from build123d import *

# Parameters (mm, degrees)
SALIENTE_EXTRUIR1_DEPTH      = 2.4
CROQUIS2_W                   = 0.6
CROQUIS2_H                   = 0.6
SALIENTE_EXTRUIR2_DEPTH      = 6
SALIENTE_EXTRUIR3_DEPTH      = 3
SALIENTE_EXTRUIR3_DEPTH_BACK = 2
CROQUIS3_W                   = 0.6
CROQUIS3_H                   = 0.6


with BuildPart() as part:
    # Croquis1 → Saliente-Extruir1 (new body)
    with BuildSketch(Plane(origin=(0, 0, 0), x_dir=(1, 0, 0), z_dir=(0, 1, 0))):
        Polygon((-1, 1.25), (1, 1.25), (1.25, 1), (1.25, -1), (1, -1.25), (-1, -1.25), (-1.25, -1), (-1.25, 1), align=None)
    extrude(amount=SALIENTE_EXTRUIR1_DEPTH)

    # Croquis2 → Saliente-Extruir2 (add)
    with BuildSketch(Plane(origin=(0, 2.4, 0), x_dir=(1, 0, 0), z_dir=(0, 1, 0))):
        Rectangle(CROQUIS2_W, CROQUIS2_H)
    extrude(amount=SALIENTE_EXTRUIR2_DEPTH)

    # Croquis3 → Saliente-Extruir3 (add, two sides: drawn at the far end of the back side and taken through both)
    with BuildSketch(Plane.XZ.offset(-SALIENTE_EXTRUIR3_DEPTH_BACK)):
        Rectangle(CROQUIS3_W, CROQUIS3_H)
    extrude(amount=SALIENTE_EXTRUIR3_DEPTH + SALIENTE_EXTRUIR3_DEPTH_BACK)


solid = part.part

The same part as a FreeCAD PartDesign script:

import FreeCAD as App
import Part
import Sketcher
Q = App.Units.Quantity

doc = App.newDocument("Part")
body = doc.addObject("PartDesign::Body", "Body")

# Sketch on XZ plane
sketch1 = body.newObject("Sketcher::SketchObject", "Sketch")
sketch1.AttachmentSupport = (doc.getObject("XZ_Plane"), [""])
sketch1.MapMode = "FlatFace"
sketch1.addGeometry(Part.LineSegment(App.Vector(1, -1.25, 0), App.Vector(-1, -1.25, 0)), False)
sketch1.addGeometry(Part.LineSegment(App.Vector(-1, -1.25, 0), App.Vector(-1.25, -1, 0)), False)
sketch1.addGeometry(Part.LineSegment(App.Vector(-1.25, -1, 0), App.Vector(-1.25, 1, 0)), False)
sketch1.addGeometry(Part.LineSegment(App.Vector(-1.25, 1, 0), App.Vector(-1, 1.25, 0)), False)
sketch1.addGeometry(Part.LineSegment(App.Vector(-1, 1.25, 0), App.Vector(1, 1.25, 0)), False)
sketch1.addGeometry(Part.LineSegment(App.Vector(1, 1.25, 0), App.Vector(1.25, 1, 0)), False)
sketch1.addGeometry(Part.LineSegment(App.Vector(1.25, 1, 0), App.Vector(1.25, -1, 0)), False)
sketch1.addGeometry(Part.LineSegment(App.Vector(1.25, -1, 0), App.Vector(1, -1.25, 0)), False)
sketch1.addConstraint(Sketcher.Constraint("Coincident", 0, 2, 1, 1))
sketch1.addConstraint(Sketcher.Constraint("Coincident", 1, 2, 2, 1))
sketch1.addConstraint(Sketcher.Constraint("Coincident", 2, 2, 3, 1))
sketch1.addConstraint(Sketcher.Constraint("Coincident", 3, 2, 4, 1))
sketch1.addConstraint(Sketcher.Constraint("Coincident", 4, 2, 5, 1))
sketch1.addConstraint(Sketcher.Constraint("Coincident", 5, 2, 6, 1))
sketch1.addConstraint(Sketcher.Constraint("Coincident", 6, 2, 7, 1))
sketch1.addConstraint(Sketcher.Constraint("Coincident", 7, 2, 0, 1))
sketch1.addConstraint(Sketcher.Constraint("Horizontal", 0))
sketch1.addConstraint(Sketcher.Constraint("Vertical", 2))
sketch1.addConstraint(Sketcher.Constraint("Horizontal", 4))
sketch1.addConstraint(Sketcher.Constraint("Vertical", 6))
sketch1.addConstraint(Sketcher.Constraint("Symmetric", 0, 2, 4, 2, -1, 1))
sketch1.addConstraint(Sketcher.Constraint("Symmetric", 1, 2, 5, 2, -1, 1))
sketch1.addConstraint(Sketcher.Constraint("Perpendicular", 1, 3))
sketch1.addConstraint(Sketcher.Constraint("Perpendicular", 5, 7))
sketch1.addConstraint(Sketcher.Constraint("Horizontal", 2, 2, 5, 2))
sketch1.addConstraint(Sketcher.Constraint("Horizontal", 1, 2, 6, 2))
sketch1.addConstraint(Sketcher.Constraint("Vertical", 0, 2, 3, 2))
sketch1.addConstraint(Sketcher.Constraint("Equal", 4, 2))
sketch1.addConstraint(Sketcher.Constraint("DistanceX", 0, 2, 0, 1, Q("2 mm")))
sketch1.addConstraint(Sketcher.Constraint("DistanceY", 0, 2, 3, 2, Q("2.5 mm")))
pad1 = body.newObject("PartDesign::Pad", "Pad")
pad1.Profile = sketch1
pad1.Length = 2.4
pad1.Reversed = True

# Sketch on XZ plane
sketch2 = body.newObject("Sketcher::SketchObject", "Sketch001")
sketch2.AttachmentSupport = (doc.getObject("XZ_Plane"), [""])
sketch2.MapMode = "FlatFace"
sketch2.AttachmentOffset = App.Placement(App.Vector(0, 0, -2.4), App.Rotation())
sketch2.addGeometry(Part.LineSegment(App.Vector(-0.3, -0.3, 0), App.Vector(-0.3, 0.3, 0)), False)
sketch2.addGeometry(Part.LineSegment(App.Vector(-0.3, 0.3, 0), App.Vector(0.3, 0.3, 0)), False)
sketch2.addGeometry(Part.LineSegment(App.Vector(0.3, 0.3, 0), App.Vector(0.3, -0.3, 0)), False)
sketch2.addGeometry(Part.LineSegment(App.Vector(0.3, -0.3, 0), App.Vector(-0.3, -0.3, 0)), False)
sketch2.addConstraint(Sketcher.Constraint("Coincident", 0, 2, 1, 1))
sketch2.addConstraint(Sketcher.Constraint("Coincident", 1, 2, 2, 1))
sketch2.addConstraint(Sketcher.Constraint("Coincident", 2, 2, 3, 1))
sketch2.addConstraint(Sketcher.Constraint("Coincident", 3, 2, 0, 1))
sketch2.addConstraint(Sketcher.Constraint("Vertical", 0))
sketch2.addConstraint(Sketcher.Constraint("Horizontal", 1))
sketch2.addConstraint(Sketcher.Constraint("Vertical", 2))
sketch2.addConstraint(Sketcher.Constraint("Horizontal", 3))
sketch2.addConstraint(Sketcher.Constraint("Symmetric", 0, 2, 2, 2, -1, 1))
sketch2.addConstraint(Sketcher.Constraint("Equal", 3, 0))
sketch2.addConstraint(Sketcher.Constraint("DistanceX", 1, 1, 1, 2, Q("0.6 mm")))
pad2 = body.newObject("PartDesign::Pad", "Pad001")
pad2.Profile = sketch2
pad2.Length = 6
pad2.Reversed = True

# Sketch on XZ plane
sketch3 = body.newObject("Sketcher::SketchObject", "Sketch002")
sketch3.AttachmentSupport = (doc.getObject("XZ_Plane"), [""])
sketch3.MapMode = "FlatFace"
sketch3.addGeometry(Part.LineSegment(App.Vector(-0.3, 0.3, 0), App.Vector(-0.3, -0.3, 0)), False)
sketch3.addGeometry(Part.LineSegment(App.Vector(-0.3, -0.3, 0), App.Vector(0.3, -0.3, 0)), False)
sketch3.addGeometry(Part.LineSegment(App.Vector(0.3, -0.3, 0), App.Vector(0.3, 0.3, 0)), False)
sketch3.addGeometry(Part.LineSegment(App.Vector(0.3, 0.3, 0), App.Vector(-0.3, 0.3, 0)), False)
sketch3.addConstraint(Sketcher.Constraint("Coincident", 0, 2, 1, 1))
sketch3.addConstraint(Sketcher.Constraint("Coincident", 1, 2, 2, 1))
sketch3.addConstraint(Sketcher.Constraint("Coincident", 2, 2, 3, 1))
sketch3.addConstraint(Sketcher.Constraint("Coincident", 3, 2, 0, 1))
sketch3.addConstraint(Sketcher.Constraint("Vertical", 0))
sketch3.addConstraint(Sketcher.Constraint("Horizontal", 1))
sketch3.addConstraint(Sketcher.Constraint("Vertical", 2))
sketch3.addConstraint(Sketcher.Constraint("Horizontal", 3))
sketch3.addConstraint(Sketcher.Constraint("Symmetric", 0, 2, 2, 2, -1, 1))
sketch3.addConstraint(Sketcher.Constraint("Equal", 3, 0))
sketch3.addConstraint(Sketcher.Constraint("DistanceX", 1, 1, 1, 2, Q("0.6 mm")))
pad3 = body.newObject("PartDesign::Pad", "Pad002")
pad3.Profile = sketch3
pad3.Type = "TwoLengths"
pad3.Length = 3
pad3.Length2 = 2

doc.recompute()
